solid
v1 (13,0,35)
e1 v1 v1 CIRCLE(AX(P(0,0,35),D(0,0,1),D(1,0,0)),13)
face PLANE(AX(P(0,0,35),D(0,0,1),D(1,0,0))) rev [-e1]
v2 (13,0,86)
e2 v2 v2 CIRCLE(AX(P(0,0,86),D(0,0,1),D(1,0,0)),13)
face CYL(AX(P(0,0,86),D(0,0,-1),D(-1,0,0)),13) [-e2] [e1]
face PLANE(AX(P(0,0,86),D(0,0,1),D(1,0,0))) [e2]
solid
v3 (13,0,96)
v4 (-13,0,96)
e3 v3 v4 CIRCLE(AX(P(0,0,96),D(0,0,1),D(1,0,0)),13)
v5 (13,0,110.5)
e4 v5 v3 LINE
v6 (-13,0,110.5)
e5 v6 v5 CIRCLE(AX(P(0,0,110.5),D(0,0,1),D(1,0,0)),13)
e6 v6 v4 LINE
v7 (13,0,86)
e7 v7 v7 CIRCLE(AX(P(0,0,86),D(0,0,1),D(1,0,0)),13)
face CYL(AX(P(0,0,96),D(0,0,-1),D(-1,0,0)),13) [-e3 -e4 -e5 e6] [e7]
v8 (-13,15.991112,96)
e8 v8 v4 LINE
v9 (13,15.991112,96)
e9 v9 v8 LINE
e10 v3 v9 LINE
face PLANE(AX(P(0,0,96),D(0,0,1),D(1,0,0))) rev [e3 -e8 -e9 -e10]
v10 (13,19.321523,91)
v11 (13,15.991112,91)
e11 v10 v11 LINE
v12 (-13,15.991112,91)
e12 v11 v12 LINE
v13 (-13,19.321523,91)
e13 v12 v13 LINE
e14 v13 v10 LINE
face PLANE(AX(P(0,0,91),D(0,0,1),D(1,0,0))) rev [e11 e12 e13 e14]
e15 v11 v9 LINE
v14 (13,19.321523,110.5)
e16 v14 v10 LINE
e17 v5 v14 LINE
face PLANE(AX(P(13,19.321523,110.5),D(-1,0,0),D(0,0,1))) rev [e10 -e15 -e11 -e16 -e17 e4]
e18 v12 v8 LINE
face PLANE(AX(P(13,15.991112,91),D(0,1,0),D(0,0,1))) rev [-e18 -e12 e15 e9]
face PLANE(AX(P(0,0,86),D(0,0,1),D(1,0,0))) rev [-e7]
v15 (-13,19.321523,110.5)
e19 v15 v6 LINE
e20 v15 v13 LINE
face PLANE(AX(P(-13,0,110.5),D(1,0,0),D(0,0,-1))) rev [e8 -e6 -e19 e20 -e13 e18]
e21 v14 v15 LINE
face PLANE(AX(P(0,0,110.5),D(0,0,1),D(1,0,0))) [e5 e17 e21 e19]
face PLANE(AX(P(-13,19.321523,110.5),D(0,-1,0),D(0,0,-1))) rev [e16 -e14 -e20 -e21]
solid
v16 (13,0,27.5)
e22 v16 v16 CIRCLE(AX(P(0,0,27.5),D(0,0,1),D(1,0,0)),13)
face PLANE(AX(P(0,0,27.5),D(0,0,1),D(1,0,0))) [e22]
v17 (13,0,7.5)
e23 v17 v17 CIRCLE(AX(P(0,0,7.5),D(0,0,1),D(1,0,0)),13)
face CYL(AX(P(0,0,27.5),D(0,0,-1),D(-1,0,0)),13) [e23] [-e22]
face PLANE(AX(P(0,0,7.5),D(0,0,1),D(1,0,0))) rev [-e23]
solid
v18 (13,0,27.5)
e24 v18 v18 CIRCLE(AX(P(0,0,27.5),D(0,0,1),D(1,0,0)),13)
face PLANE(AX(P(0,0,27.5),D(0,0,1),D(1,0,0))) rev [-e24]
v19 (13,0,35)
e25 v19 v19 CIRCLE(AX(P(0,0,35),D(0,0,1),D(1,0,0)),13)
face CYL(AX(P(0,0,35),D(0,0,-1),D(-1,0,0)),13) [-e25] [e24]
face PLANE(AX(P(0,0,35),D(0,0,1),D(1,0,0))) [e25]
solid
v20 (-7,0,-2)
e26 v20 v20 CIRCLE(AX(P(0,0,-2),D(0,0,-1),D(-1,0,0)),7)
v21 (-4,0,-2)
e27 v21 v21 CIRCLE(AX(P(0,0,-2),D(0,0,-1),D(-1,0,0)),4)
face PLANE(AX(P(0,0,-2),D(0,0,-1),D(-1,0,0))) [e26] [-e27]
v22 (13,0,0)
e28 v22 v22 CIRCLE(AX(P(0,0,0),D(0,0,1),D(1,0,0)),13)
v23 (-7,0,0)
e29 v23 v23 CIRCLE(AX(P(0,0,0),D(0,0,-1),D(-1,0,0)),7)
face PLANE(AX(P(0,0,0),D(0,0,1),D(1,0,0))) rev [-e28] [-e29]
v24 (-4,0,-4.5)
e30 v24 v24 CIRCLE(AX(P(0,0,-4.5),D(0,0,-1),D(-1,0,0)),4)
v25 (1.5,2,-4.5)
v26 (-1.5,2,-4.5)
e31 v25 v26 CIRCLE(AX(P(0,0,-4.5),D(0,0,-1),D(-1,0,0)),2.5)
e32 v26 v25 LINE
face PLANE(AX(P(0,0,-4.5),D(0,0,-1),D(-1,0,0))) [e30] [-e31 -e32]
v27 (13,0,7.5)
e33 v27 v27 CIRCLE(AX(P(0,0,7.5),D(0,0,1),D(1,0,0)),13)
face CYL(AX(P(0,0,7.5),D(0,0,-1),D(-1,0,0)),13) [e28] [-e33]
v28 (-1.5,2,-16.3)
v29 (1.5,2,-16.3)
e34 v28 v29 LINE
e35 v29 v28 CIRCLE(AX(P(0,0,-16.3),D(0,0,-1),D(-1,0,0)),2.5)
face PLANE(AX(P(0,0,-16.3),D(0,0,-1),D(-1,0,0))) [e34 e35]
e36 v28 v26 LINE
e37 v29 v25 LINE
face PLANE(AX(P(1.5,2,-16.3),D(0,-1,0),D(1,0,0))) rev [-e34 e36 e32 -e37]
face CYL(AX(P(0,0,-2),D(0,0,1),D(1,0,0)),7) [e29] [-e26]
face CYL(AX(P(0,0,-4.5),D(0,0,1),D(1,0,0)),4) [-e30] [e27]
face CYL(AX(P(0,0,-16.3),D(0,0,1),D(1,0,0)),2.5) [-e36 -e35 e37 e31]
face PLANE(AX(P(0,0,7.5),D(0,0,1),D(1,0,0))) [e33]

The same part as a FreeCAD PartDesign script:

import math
import FreeCAD as App
import Part
import Sketcher

V = App.Vector


def add_polygon(sketch, points):
    """Adds a closed chain of lines whose ends are joined by coincident constraints."""
    first, n = sketch.GeometryCount, len(points)
    for a, b in zip(points, points[1:] + points[:1]):
        sketch.addGeometry(Part.LineSegment(App.Vector(*a, 0), App.Vector(*b, 0)), False)
    for i in range(n):
        sketch.addConstraint(Sketcher.Constraint("Coincident", first + i, 2, first + (i + 1) % n, 1))

doc = App.newDocument("Part")
params = doc.addObject("Spreadsheet::Sheet", "Params")
for row, (alias, value) in enumerate([
    ("sketch1_diameter", "26 mm"),
    ("pad1_length", "7.5 mm"),
    ("sketch2_diameter", "14 mm"),
    ("pad2_length", "2 mm"),
    ("sketch3_diameter", "8 mm"),
    ("pad3_length", "2.5 mm"),
    ("sketch4_radius", "2.5 mm"),
    ("sketch4_width", "3 mm"),
    ("pad4_length", "11.8 mm"),
    ("sketch5_diameter", "26 mm"),
    ("pad5_length", "20 mm"),
    ("sketch6_diameter", "26 mm"),
    ("pad6_length", "7.5 mm"),
    ("sketch7_diameter", "26 mm"),
    ("pad7_length", "51 mm"),
    ("sketch8_diameter", "26 mm"),
    ("pad8_length", "10 mm"),
    ("sketch9_radius", "13 mm"),
    ("pad9_length", "14.5 mm"),
    ("sketch10_width", "26 mm"),
    ("pad10_length", "5 mm"),
], start=1):
    params.set(f"A{row}", alias)
    params.set(f"B{row}", "=" + value)
    params.setAlias(f"B{row}", alias)

body = doc.addObject("PartDesign::Body", "Body")

sketch1 = body.newObject("Sketcher::SketchObject", "Sketch")
sketch1.AttachmentSupport = (doc.getObject("XY_Plane"), [""])
sketch1.MapMode = "FlatFace"
sketch1.addGeometry(Part.Circle(V(0, 0, 0), V(0, 0, 1), 13), False)
sketch1.addConstraint([
    Sketcher.Constraint("Coincident", 0, 3, -1, 1),
    Sketcher.Constraint("Diameter", 0, 26.0),
])
sketch1.setExpression("Constraints[1]", "Params.sketch1_diameter")
pad1 = body.newObject("PartDesign::Pad", "Pad")
pad1.Profile = sketch1
pad1.setExpression("Length", "Params.pad1_length")

sketch2 = body.newObject("Sketcher::SketchObject", "Sketch001")
sketch2.AttachmentSupport = (doc.getObject("XY_Plane"), [""])
sketch2.MapMode = "FlatFace"
sketch2.addGeometry(Part.Circle(V(0, 0, 0), V(0, 0, 1), 7), False)
sketch2.addConstraint([
    Sketcher.Constraint("Coincident", 0, 3, -1, 1),
    Sketcher.Constraint("Diameter", 0, 14.0),
])
sketch2.setExpression("Constraints[1]", "Params.sketch2_diameter")
pad2 = body.newObject("PartDesign::Pad", "Pad001")
pad2.Profile = sketch2
pad2.setExpression("Length", "Params.pad2_length")
pad2.Reversed = True

sketch3 = body.newObject("Sketcher::SketchObject", "Sketch002")
sketch3.AttachmentSupport = (doc.getObject("XY_Plane"), [""])
sketch3.MapMode = "FlatFace"
sketch3.AttachmentOffset = App.Placement(V(0, 0, -2), App.Rotation())
sketch3.addGeometry(Part.Circle(V(0, 0, 0), V(0, 0, 1), 4), False)
sketch3.addConstraint([
    Sketcher.Constraint("Coincident", 0, 3, -1, 1),
    Sketcher.Constraint("Diameter", 0, 8.0),
])
sketch3.setExpression("Constraints[1]", "Params.sketch3_diameter")
pad3 = body.newObject("PartDesign::Pad", "Pad002")
pad3.Profile = sketch3
pad3.setExpression("Length", "Params.pad3_length")
pad3.Reversed = True

sketch4 = body.newObject("Sketcher::SketchObject", "Sketch003")
sketch4.AttachmentSupport = (doc.getObject("XY_Plane"), [""])
sketch4.MapMode = "FlatFace"
sketch4.AttachmentOffset = App.Placement(V(0, 0, -4.5), App.Rotation())
sketch4.addGeometry([
    Part.LineSegment(V(-1.5, 2, 0), V(1.5, 2, 0)),
    Part.ArcOfCircle(Part.Circle(V(0, 0, 0), V(0, 0, 1), 2.5), math.radians(127), math.radians(413)),
], False)
sketch4.addConstraint([
    Sketcher.Constraint("Coincident", 0, 1, 1, 1),
    Sketcher.Constraint("Coincident", 1, 2, 0, 2),
    Sketcher.Constraint("Horizontal", 0),
    Sketcher.Constraint("Coincident", 1, 3, -1, 1),
    Sketcher.Constraint("Radius", 1, 2.5),
    Sketcher.Constraint("DistanceX", 0, 1, 0, 2, 3.0),
])
sketch4.setExpression("Constraints[4]", "Params.sketch4_radius")
sketch4.setExpression("Constraints[5]", "Params.sketch4_width")
pad4 = body.newObject("PartDesign::Pad", "Pad003")
pad4.Profile = sketch4
pad4.setExpression("Length", "Params.pad4_length")
pad4.Reversed = True
body2 = doc.addObject("PartDesign::Body", "Body001")

sketch5 = body2.newObject("Sketcher::SketchObject", "Sketch004")
sketch5.AttachmentSupport = (doc.getObject("XY_Plane001"), [""])
sketch5.MapMode = "FlatFace"
sketch5.AttachmentOffset = App.Placement(V(0, 0, 7.5), App.Rotation())
sketch5.addGeometry(Part.Circle(V(0, 0, 0), V(0, 0, 1), 13), False)
sketch5.addConstraint([
    Sketcher.Constraint("Coincident", 0, 3, -1, 1),
    Sketcher.Constraint("Diameter", 0, 26.0),
])
sketch5.setExpression("Constraints[1]", "Params.sketch5_diameter")
pad5 = body2.newObject("PartDesign::Pad", "Pad004")
pad5.Profile = sketch5
pad5.setExpression("Length", "Params.pad5_length")
body3 = doc.addObject("PartDesign::Body", "Body002")

sketch6 = body3.newObject("Sketcher::SketchObject", "Sketch005")
sketch6.AttachmentSupport = (doc.getObject("XY_Plane002"), [""])
sketch6.MapMode = "FlatFace"
sketch6.AttachmentOffset = App.Placement(V(0, 0, 27.5), App.Rotation())
sketch6.addGeometry(Part.Circle(V(0, 0, 0), V(0, 0, 1), 13), False)
sketch6.addConstraint([
    Sketcher.Constraint("Coincident", 0, 3, -1, 1),
    Sketcher.Constraint("Diameter", 0, 26.0),
])
sketch6.setExpression("Constraints[1]", "Params.sketch6_diameter")
pad6 = body3.newObject("PartDesign::Pad", "Pad005")
pad6.Profile = sketch6
pad6.setExpression("Length", "Params.pad6_length")
body4 = doc.addObject("PartDesign::Body", "Body003")

sketch7 = body4.newObject("Sketcher::SketchObject", "Sketch006")
sketch7.AttachmentSupport = (doc.getObject("XY_Plane003"), [""])
sketch7.MapMode = "FlatFace"
sketch7.AttachmentOffset = App.Placement(V(0, 0, 35), App.Rotation())
sketch7.addGeometry(Part.Circle(V(0, 0, 0), V(0, 0, 1), 13), False)
sketch7.addConstraint([
    Sketcher.Constraint("Coincident", 0, 3, -1, 1),
    Sketcher.Constraint("Diameter", 0, 26.0),
])
sketch7.setExpression("Constraints[1]", "Params.sketch7_diameter")
pad7 = body4.newObject("PartDesign::Pad", "Pad006")
pad7.Profile = sketch7
pad7.setExpression("Length", "Params.pad7_length")
body5 = doc.addObject("PartDesign::Body", "Body004")

sketch8 = body5.newObject("Sketcher::SketchObject", "Sketch007")
sketch8.AttachmentSupport = (doc.getObject("XY_Plane004"), [""])
sketch8.MapMode = "FlatFace"
sketch8.AttachmentOffset = App.Placement(V(0, 0, 86), App.Rotation())
sketch8.addGeometry(Part.Circle(V(0, 0, 0), V(0, 0, 1), 13), False)
sketch8.addConstraint([
    Sketcher.Constraint("Coincident", 0, 3, -1, 1),
    Sketcher.Constraint("Diameter", 0, 26.0),
])
sketch8.setExpression("Constraints[1]", "Params.sketch8_diameter")
pad8 = body5.newObject("PartDesign::Pad", "Pad007")
pad8.Profile = sketch8
pad8.setExpression("Length", "Params.pad8_length")

sketch9 = body5.newObject("Sketcher::SketchObject", "Sketch008")
sketch9.AttachmentSupport = (doc.getObject("XY_Plane004"), [""])
sketch9.MapMode = "FlatFace"
sketch9.AttachmentOffset = App.Placement(V(0, 0, 96), App.Rotation())
sketch9.addGeometry([
    Part.LineSegment(V(-13, 19, 0), V(-13, 0, 0)),
    Part.ArcOfCircle(Part.Circle(V(0, 0, 0), V(0, 0, 1), 13), math.radians(180), math.radians(360)),
    Part.LineSegment(V(13, 0, 0), V(13, 19, 0)),
    Part.LineSegment(V(13, 19, 0), V(-13, 19, 0)),
], False)
sketch9.addConstraint([
    Sketcher.Constraint("Tangent", 0, 2, 1, 1),
    Sketcher.Constraint("Tangent", 1, 2, 2, 1),
    Sketcher.Constraint("Coincident", 2, 2, 3, 1),
    Sketcher.Constraint("Coincident", 3, 2, 0, 1),
    Sketcher.Constraint("Vertical", 0),
    Sketcher.Constraint("Vertical", 2),
    Sketcher.Constraint("Horizontal", 3),
    Sketcher.Constraint("Coincident", 1, 3, -1, 1),
    Sketcher.Constraint("Radius", 1, 13.0),
    Sketcher.Constraint("DistanceY", 0, 2, 0, 1, 19.321523),
])
sketch9.setExpression("Constraints[8]", "Params.sketch9_radius")
pad9 = body5.newObject("PartDesign::Pad", "Pad008")
pad9.Profile = sketch9
pad9.setExpression("Length", "Params.pad9_length")

sketch10 = body5.newObject("Sketcher::SketchObject", "Sketch009")
sketch10.AttachmentSupport = (doc.getObject("XY_Plane004"), [""])
sketch10.MapMode = "FlatFace"
sketch10.AttachmentOffset = App.Placement(V(0, 0, 96), App.Rotation())
add_polygon(sketch10, [(13, 19.3), (13, 16), (-13, 16), (-13, 19.3)])
sketch10.addConstraint([
    Sketcher.Constraint("Vertical", 0),
    Sketcher.Constraint("Horizontal", 1),
    Sketcher.Constraint("Vertical", 2),
    Sketcher.Constraint("Horizontal", 3),
    Sketcher.Constraint("DistanceX", 1, 2, 1, 1, 26.0),
    Sketcher.Constraint("DistanceX", -1, 1, 0, 2, 13.0),
    Sketcher.Constraint("DistanceY", 0, 2, 0, 1, 3.330412),
    Sketcher.Constraint("DistanceY", -1, 1, 0, 2, 15.991112),
])
sketch10.setExpression("Constraints[8]", "Params.sketch10_width")
pad10 = body5.newObject("PartDesign::Pad", "Pad009")
pad10.Profile = sketch10
pad10.setExpression("Length", "Params.pad10_length")
pad10.Reversed = True

doc.recompute()
